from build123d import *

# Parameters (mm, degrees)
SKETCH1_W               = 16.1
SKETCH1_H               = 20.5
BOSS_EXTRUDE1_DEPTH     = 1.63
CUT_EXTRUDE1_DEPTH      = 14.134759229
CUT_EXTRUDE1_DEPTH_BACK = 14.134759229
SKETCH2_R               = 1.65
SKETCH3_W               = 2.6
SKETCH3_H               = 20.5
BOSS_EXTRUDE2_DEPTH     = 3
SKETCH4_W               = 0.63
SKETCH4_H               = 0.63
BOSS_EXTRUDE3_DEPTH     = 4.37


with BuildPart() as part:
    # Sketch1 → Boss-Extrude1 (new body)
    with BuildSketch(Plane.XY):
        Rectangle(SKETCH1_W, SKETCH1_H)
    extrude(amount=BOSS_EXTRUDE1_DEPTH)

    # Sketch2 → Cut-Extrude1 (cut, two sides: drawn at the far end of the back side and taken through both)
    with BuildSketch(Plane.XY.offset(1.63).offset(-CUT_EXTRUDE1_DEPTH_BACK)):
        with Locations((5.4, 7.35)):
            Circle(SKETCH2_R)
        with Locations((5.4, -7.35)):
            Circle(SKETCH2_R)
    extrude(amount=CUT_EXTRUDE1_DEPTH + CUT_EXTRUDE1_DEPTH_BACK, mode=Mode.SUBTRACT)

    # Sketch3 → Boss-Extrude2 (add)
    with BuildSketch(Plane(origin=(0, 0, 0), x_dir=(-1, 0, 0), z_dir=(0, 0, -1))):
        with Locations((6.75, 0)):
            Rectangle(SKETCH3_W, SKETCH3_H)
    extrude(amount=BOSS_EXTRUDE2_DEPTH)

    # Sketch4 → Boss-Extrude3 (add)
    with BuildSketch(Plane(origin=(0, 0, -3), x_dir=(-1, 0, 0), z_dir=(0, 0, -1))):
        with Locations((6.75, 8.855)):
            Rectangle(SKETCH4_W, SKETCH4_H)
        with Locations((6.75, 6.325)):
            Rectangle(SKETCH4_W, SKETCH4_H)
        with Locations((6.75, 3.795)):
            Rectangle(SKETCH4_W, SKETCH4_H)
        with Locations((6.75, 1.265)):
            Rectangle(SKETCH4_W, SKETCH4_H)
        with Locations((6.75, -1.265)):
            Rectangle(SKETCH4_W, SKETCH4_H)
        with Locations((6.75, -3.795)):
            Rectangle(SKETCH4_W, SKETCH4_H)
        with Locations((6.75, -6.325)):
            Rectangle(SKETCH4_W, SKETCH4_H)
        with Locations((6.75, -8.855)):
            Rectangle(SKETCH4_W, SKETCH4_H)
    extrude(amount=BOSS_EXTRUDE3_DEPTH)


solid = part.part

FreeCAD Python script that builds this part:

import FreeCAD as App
import Part
import Sketcher
from FreeCAD import Vector

doc = App.newDocument("Part")
params = doc.addObject("Spreadsheet::Sheet", "Params")
for row, (alias, value) in enumerate([
    ("sketch1_width", "16.1 mm"),
    ("sketch1_height", "20.5 mm"),
    ("pad1_length", "1.63 mm"),
    ("sketch2_diameter", "3.3 mm"),
    ("sketch3_width", "2.6 mm"),
    ("sketch3_height", "20.5 mm"),
    ("pad2_length", "3 mm"),
    ("sketch4_width", "0.63 mm"),
    ("pad3_length", "4.37 mm"),
], start=1):
    params.set(f"A{row}", alias)
    params.set(f"B{row}", "=" + value)
    params.setAlias(f"B{row}", alias)

body = doc.addObject("PartDesign::Body", "Body")

sketch1 = body.newObject("Sketcher::SketchObject", "Sketch")
sketch1.AttachmentSupport = (doc.getObject("XY_Plane"), [""])
sketch1.MapMode = "FlatFace"
sketch1.addGeometry([
    Part.LineSegment(Vector(-8, 10, 0), Vector(-8, -10, 0)),
    Part.LineSegment(Vector(-8, -10, 0), Vector(8, -10, 0)),
    Part.LineSegment(Vector(8, -10, 0), Vector(8, 10, 0)),
    Part.LineSegment(Vector(8, 10, 0), Vector(-8, 10, 0)),
], False)
sketch1.addConstraint([
    Sketcher.Constraint("Coincident", 0, 2, 1, 1),
    Sketcher.Constraint("Coincident", 1, 2, 2, 1),
    Sketcher.Constraint("Coincident", 2, 2, 3, 1),
    Sketcher.Constraint("Coincident", 3, 2, 0, 1),
    Sketcher.Constraint("Vertical", 0),
    Sketcher.Constraint("Horizontal", 1),
    Sketcher.Constraint("Vertical", 2),
    Sketcher.Constraint("Horizontal", 3),
    Sketcher.Constraint("Symmetric", 0, 2, 2, 2, -1, 1),
    Sketcher.Constraint("DistanceX", 1, 1, 1, 2, 16.1),
    Sketcher.Constraint("DistanceY", 0, 2, 0, 1, 20.5),
])
sketch1.setExpression("Constraints[9]", "Params.sketch1_width")
sketch1.setExpression("Constraints[10]", "Params.sketch1_height")
pad1 = body.newObject("PartDesign::Pad", "Pad")
pad1.Profile = sketch1
pad1.setExpression("Length", "Params.pad1_length")

sketch2 = body.newObject("Sketcher::SketchObject", "Sketch001")
sketch2.AttachmentSupport = (doc.getObject("XY_Plane"), [""])
sketch2.MapMode = "FlatFace"
sketch2.AttachmentOffset = App.Placement(Vector(0, 0, 1.63), App.Rotation())
sketch2.addGeometry([
    Part.Circle(Vector(5.4, 7.3, 0), Vector(0, 0, 1), 1.6),
    Part.Circle(Vector(5.4, -7.3, 0), Vector(0, 0, 1), 1.6),
], False)
sketch2.addConstraint([
    Sketcher.Constraint("Equal", 0, 1),
    Sketcher.Constraint("Symmetric", 0, 3, 1, 3, -1),
    Sketcher.Constraint("Diameter", 0, 3.3),
    Sketcher.Constraint("DistanceX", -1, 1, 0, 3, 5.4),
    Sketcher.Constraint("DistanceY", 1, 3, 0, 3, 14.7),
])
sketch2.setExpression("Constraints[2]", "Params.sketch2_diameter")
pocket1 = body.newObject("PartDesign::Pocket", "Pocket")
pocket1.Profile = sketch2
pocket1.Type = "ThroughAll"
pocket1.Midplane = True

sketch3 = body.newObject("Sketcher::SketchObject", "Sketch002")
sketch3.AttachmentSupport = (doc.getObject("XY_Plane"), [""])
sketch3.MapMode = "FlatFace"
sketch3.addGeometry([
    Part.LineSegment(Vector(-5.5, 10.2, 0), Vector(-5.5, -10.2, 0)),
    Part.LineSegment(Vector(-5.5, -10.2, 0), Vector(-8.1, -10.2, 0)),
    Part.LineSegment(Vector(-8.1, -10.2, 0), Vector(-8.1, 10.2, 0)),
    Part.LineSegment(Vector(-8.1, 10.2, 0), Vector(-5.5, 10.2, 0)),
], False)
sketch3.addConstraint([
    Sketcher.Constraint("Coincident", 0, 2, 1, 1),
    Sketcher.Constraint("Coincident", 1, 2, 2, 1),
    Sketcher.Constraint("Coincident", 2, 2, 3, 1),
    Sketcher.Constraint("Coincident", 3, 2, 0, 1),
    Sketcher.Constraint("Vertical", 0),
    Sketcher.Constraint("Horizontal", 1),
    Sketcher.Constraint("Vertical", 2),
    Sketcher.Constraint("Horizontal", 3),
    Sketcher.Constraint("DistanceX", 1, 2, 1, 1, 2.6),
    Sketcher.Constraint("DistanceY", 0, 2, 0, 1, 20.5),
    Sketcher.Constraint("DistanceX", 0, 2, -1, 1, 5.45),
    Sketcher.Constraint("DistanceY", 0, 2, -1, 1, 10.25),
])
sketch3.setExpression("Constraints[8]", "Params.sketch3_width")
sketch3.setExpression("Constraints[9]", "Params.sketch3_height")
pad2 = body.newObject("PartDesign::Pad", "Pad001")
pad2.Profile = sketch3
pad2.setExpression("Length", "Params.pad2_length")
pad2.Reversed = True

sketch4 = body.newObject("Sketcher::SketchObject", "Sketch003")
sketch4.AttachmentSupport = (doc.getObject("XY_Plane"), [""])
sketch4.MapMode = "FlatFace"
sketch4.AttachmentOffset = App.Placement(Vector(0, 0, -3), App.Rotation())
sketch4.addGeometry([
    Part.LineSegment(Vector(-6.4, 9.2, 0), Vector(-6.4, 8.5, 0)),
    Part.LineSegment(Vector(-6.4, 8.5, 0), Vector(-7.1, 8.5, 0)),
    Part.LineSegment(Vector(-7.1, 8.5, 0), Vector(-7.1, 9.2, 0)),
    Part.LineSegment(Vector(-7.1, 9.2, 0), Vector(-6.4, 9.2, 0)),
    Part.LineSegment(Vector(-6.4, 6.6, 0), Vector(-6.4, 6, 0)),
    Part.LineSegment(Vector(-6.4, 6, 0), Vector(-7.1, 6, 0)),
    Part.LineSegment(Vector(-7.1, 6, 0), Vector(-7.1, 6.6, 0)),
    Part.LineSegment(Vector(-7.1, 6.6, 0), Vector(-6.4, 6.6, 0)),
    Part.LineSegment(Vector(-6.4, 4.1, 0), Vector(-6.4, 3.5, 0)),
    Part.LineSegment(Vector(-6.4, 3.5, 0), Vector(-7.1, 3.5, 0)),
    Part.LineSegment(Vector(-7.1, 3.5, 0), Vector(-7.1, 4.1, 0)),
    Part.LineSegment(Vector(-7.1, 4.1, 0), Vector(-6.4, 4.1, 0)),
    Part.LineSegment(Vector(-6.4, 1.6, 0), Vector(-6.4, 0.9, 0)),
    Part.LineSegment(Vector(-6.4, 0.9, 0), Vector(-7.1, 0.9, 0)),
    Part.LineSegment(Vector(-7.1, 0.9, 0), Vector(-7.1, 1.6, 0)),
    Part.LineSegment(Vector(-7.1, 1.6, 0), Vector(-6.4, 1.6, 0)),
    Part.LineSegment(Vector(-6.4, -0.9, 0), Vector(-6.4, -1.6, 0)),
    Part.LineSegment(Vector(-6.4, -1.6, 0), Vector(-7.1, -1.6, 0)),
    Part.LineSegment(Vector(-7.1, -1.6, 0), Vector(-7.1, -0.9, 0)),
    Part.LineSegment(Vector(-7.1, -0.9, 0), Vector(-6.4, -0.9, 0)),
    Part.LineSegment(Vector(-6.4, -3.5, 0), Vector(-6.4, -4.1, 0)),
    Part.LineSegment(Vector(-6.4, -4.1, 0), Vector(-7.1, -4.1, 0)),
    Part.LineSegment(Vector(-7.1, -4.1, 0), Vector(-7.1, -3.5, 0)),
    Part.LineSegment(Vector(-7.1, -3.5, 0), Vector(-6.4, -3.5, 0)),
    Part.LineSegment(Vector(-6.4, -6, 0), Vector(-6.4, -6.6, 0)),
    Part.LineSegment(Vector(-6.4, -6.6, 0), Vector(-7.1, -6.6, 0)),
    Part.LineSegment(Vector(-7.1, -6.6, 0), Vector(-7.1, -6, 0)),
    Part.LineSegment(Vector(-7.1, -6, 0), Vector(-6.4, -6, 0)),
    Part.LineSegment(Vector(-6.4, -8.5, 0), Vector(-6.4, -9.2, 0)),
    Part.LineSegment(Vector(-6.4, -9.2, 0), Vector(-7.1, -9.2, 0)),
    Part.LineSegment(Vector(-7.1, -9.2, 0), Vector(-7.1, -8.5, 0)),
    Part.LineSegment(Vector(-7.1, -8.5, 0), Vector(-6.4, -8.5, 0)),
], False)
sketch4.addConstraint([
    Sketcher.Constraint("Coincident", 0, 2, 1, 1),
    Sketcher.Constraint("Coincident", 1, 2, 2, 1),
    Sketcher.Constraint("Coincident", 2, 2, 3, 1),
    Sketcher.Constraint("Coincident", 3, 2, 0, 1),
    Sketcher.Constraint("Coincident", 4, 2, 5, 1),
    Sketcher.Constraint("Coincident", 5, 2, 6, 1),
    Sketcher.Constraint("Coincident", 6, 2, 7, 1),
    Sketcher.Constraint("Coincident", 7, 2, 4, 1),
    Sketcher.Constraint("Coincident", 8, 2, 9, 1),
    Sketcher.Constraint("Coincident", 9, 2, 10, 1),
    Sketcher.Constraint("Coincident", 10, 2, 11, 1),
    Sketcher.Constraint("Coincident", 11, 2, 8, 1),
    Sketcher.Constraint("Coincident", 12, 2, 13, 1),
    Sketcher.Constraint("Coincident", 13, 2, 14, 1),
    Sketcher.Constraint("Coincident", 14, 2, 15, 1),
    Sketcher.Constraint("Coincident", 15, 2, 12, 1),
    Sketcher.Constraint("Coincident", 16, 2, 17, 1),
    Sketcher.Constraint("Coincident", 17, 2, 18, 1),
    Sketcher.Constraint("Coincident", 18, 2, 19, 1),
    Sketcher.Constraint("Coincident", 19, 2, 16, 1),
    Sketcher.Constraint("Coincident", 20, 2, 21, 1),
    Sketcher.Constraint("Coincident", 21, 2, 22, 1),
    Sketcher.Constraint("Coincident", 22, 2, 23, 1),
    Sketcher.Constraint("Coincident", 23, 2, 20, 1),
    Sketcher.Constraint("Coincident", 24, 2, 25, 1),
    Sketcher.Constraint("Coincident", 25, 2, 26, 1),
    Sketcher.Constraint("Coincident", 26, 2, 27, 1),
    Sketcher.Constraint("Coincident", 27, 2, 24, 1),
    Sketcher.Constraint("Coincident", 28, 2, 29, 1),
    Sketcher.Constraint("Coincident", 29, 2, 30, 1),
    Sketcher.Constraint("Coincident", 30, 2, 31, 1),
    Sketcher.Constraint("Coincident", 31, 2, 28, 1),
    Sketcher.Constraint("Vertical", 0),
    Sketcher.Constraint("Horizontal", 1),
    Sketcher.Constraint("Vertical", 2),
    Sketcher.Constraint("Horizontal", 3),
    Sketcher.Constraint("Vertical", 4),
    Sketcher.Constraint("Horizontal", 5),
    Sketcher.Constraint("Vertical", 6),
    Sketcher.Constraint("Horizontal", 7),
    Sketcher.Constraint("Vertical", 8),
    Sketcher.Constraint("Horizontal", 9),
    Sketcher.Constraint("Vertical", 10),
    Sketcher.Constraint("Horizontal", 11),
    Sketcher.Constraint("Vertical", 12),
    Sketcher.Constraint("Horizontal", 13),
    Sketcher.Constraint("Vertical", 14),
    Sketcher.Constraint("Horizontal", 15),
    Sketcher.Constraint("Vertical", 16),
    Sketcher.Constraint("Horizontal", 17),
    Sketcher.Constraint("Vertical", 18),
    Sketcher.Constraint("Horizontal", 19),
    Sketcher.Constraint("Vertical", 20),
    Sketcher.Constraint("Horizontal", 21),
    Sketcher.Constraint("Vertical", 22),
    Sketcher.Constraint("Horizontal", 23),
    Sketcher.Constraint("Vertical", 24),
    Sketcher.Constraint("Horizontal", 25),
    Sketcher.Constraint("Vertical", 26),
    Sketcher.Constraint("Horizontal", 27),
    Sketcher.Constraint("Vertical", 28),
    Sketcher.Constraint("Horizontal", 29),
    Sketcher.Constraint("Vertical", 30),
    Sketcher.Constraint("Horizontal", 31),
    Sketcher.Constraint("Symmetric", 15, 2, 16, 2, -1),
    Sketcher.Constraint("Symmetric", 13, 2, 18, 2, -1),
    Sketcher.Constraint("Symmetric", 11, 2, 20, 2, -1),
    Sketcher.Constraint("Symmetric", 9, 2, 22, 2, -1),
    Sketcher.Constraint("Symmetric", 7, 2, 24, 2, -1),
    Sketcher.Constraint("Symmetric", 5, 2, 26, 2, -1),
    Sketcher.Constraint("Symmetric", 3, 2, 28, 2, -1),
    Sketcher.Constraint("Symmetric", 1, 2, 30, 2, -1),
    Sketcher.Constraint("Vertical", 3, 2, 4, 2),
    Sketcher.Constraint("Vertical", 2, 2, 5, 2),
    Sketcher.Constraint("Vertical", 7, 2, 8, 2),
    Sketcher.Constraint("Vertical", 6, 2, 9, 2),
    Sketcher.Constraint("Vertical", 11, 2, 12, 2),
    Sketcher.Constraint("Vertical", 10, 2, 13, 2),
    Sketcher.Constraint("Equal", 31, 0),
    Sketcher.Constraint("Equal", 2, 4),
    Sketcher.Constraint("Equal", 6, 8),
    Sketcher.Constraint("Equal", 10, 12),
    Sketcher.Constraint("DistanceX", 1, 2, 1, 1, 0.63),
    Sketcher.Constraint("DistanceY", 6, 2, 1, 2, 1.9),
    Sketcher.Constraint("DistanceY", 10, 2, 5, 2, 1.9),
    Sketcher.Constraint("DistanceY", 14, 2, 9, 2, 1.9),
    Sketcher.Constraint("DistanceY", 18, 2, 13, 2, 1.9),
    Sketcher.Constraint("DistanceX", 0, 2, -1, 1, 6.435),
])
sketch4.setExpression("Constraints[82]", "Params.sketch4_width")
pad3 = body.newObject("PartDesign::Pad", "Pad002")
pad3.Profile = sketch4
pad3.setExpression("Length", "Params.pad3_length")
pad3.Reversed = True

doc.recompute()
